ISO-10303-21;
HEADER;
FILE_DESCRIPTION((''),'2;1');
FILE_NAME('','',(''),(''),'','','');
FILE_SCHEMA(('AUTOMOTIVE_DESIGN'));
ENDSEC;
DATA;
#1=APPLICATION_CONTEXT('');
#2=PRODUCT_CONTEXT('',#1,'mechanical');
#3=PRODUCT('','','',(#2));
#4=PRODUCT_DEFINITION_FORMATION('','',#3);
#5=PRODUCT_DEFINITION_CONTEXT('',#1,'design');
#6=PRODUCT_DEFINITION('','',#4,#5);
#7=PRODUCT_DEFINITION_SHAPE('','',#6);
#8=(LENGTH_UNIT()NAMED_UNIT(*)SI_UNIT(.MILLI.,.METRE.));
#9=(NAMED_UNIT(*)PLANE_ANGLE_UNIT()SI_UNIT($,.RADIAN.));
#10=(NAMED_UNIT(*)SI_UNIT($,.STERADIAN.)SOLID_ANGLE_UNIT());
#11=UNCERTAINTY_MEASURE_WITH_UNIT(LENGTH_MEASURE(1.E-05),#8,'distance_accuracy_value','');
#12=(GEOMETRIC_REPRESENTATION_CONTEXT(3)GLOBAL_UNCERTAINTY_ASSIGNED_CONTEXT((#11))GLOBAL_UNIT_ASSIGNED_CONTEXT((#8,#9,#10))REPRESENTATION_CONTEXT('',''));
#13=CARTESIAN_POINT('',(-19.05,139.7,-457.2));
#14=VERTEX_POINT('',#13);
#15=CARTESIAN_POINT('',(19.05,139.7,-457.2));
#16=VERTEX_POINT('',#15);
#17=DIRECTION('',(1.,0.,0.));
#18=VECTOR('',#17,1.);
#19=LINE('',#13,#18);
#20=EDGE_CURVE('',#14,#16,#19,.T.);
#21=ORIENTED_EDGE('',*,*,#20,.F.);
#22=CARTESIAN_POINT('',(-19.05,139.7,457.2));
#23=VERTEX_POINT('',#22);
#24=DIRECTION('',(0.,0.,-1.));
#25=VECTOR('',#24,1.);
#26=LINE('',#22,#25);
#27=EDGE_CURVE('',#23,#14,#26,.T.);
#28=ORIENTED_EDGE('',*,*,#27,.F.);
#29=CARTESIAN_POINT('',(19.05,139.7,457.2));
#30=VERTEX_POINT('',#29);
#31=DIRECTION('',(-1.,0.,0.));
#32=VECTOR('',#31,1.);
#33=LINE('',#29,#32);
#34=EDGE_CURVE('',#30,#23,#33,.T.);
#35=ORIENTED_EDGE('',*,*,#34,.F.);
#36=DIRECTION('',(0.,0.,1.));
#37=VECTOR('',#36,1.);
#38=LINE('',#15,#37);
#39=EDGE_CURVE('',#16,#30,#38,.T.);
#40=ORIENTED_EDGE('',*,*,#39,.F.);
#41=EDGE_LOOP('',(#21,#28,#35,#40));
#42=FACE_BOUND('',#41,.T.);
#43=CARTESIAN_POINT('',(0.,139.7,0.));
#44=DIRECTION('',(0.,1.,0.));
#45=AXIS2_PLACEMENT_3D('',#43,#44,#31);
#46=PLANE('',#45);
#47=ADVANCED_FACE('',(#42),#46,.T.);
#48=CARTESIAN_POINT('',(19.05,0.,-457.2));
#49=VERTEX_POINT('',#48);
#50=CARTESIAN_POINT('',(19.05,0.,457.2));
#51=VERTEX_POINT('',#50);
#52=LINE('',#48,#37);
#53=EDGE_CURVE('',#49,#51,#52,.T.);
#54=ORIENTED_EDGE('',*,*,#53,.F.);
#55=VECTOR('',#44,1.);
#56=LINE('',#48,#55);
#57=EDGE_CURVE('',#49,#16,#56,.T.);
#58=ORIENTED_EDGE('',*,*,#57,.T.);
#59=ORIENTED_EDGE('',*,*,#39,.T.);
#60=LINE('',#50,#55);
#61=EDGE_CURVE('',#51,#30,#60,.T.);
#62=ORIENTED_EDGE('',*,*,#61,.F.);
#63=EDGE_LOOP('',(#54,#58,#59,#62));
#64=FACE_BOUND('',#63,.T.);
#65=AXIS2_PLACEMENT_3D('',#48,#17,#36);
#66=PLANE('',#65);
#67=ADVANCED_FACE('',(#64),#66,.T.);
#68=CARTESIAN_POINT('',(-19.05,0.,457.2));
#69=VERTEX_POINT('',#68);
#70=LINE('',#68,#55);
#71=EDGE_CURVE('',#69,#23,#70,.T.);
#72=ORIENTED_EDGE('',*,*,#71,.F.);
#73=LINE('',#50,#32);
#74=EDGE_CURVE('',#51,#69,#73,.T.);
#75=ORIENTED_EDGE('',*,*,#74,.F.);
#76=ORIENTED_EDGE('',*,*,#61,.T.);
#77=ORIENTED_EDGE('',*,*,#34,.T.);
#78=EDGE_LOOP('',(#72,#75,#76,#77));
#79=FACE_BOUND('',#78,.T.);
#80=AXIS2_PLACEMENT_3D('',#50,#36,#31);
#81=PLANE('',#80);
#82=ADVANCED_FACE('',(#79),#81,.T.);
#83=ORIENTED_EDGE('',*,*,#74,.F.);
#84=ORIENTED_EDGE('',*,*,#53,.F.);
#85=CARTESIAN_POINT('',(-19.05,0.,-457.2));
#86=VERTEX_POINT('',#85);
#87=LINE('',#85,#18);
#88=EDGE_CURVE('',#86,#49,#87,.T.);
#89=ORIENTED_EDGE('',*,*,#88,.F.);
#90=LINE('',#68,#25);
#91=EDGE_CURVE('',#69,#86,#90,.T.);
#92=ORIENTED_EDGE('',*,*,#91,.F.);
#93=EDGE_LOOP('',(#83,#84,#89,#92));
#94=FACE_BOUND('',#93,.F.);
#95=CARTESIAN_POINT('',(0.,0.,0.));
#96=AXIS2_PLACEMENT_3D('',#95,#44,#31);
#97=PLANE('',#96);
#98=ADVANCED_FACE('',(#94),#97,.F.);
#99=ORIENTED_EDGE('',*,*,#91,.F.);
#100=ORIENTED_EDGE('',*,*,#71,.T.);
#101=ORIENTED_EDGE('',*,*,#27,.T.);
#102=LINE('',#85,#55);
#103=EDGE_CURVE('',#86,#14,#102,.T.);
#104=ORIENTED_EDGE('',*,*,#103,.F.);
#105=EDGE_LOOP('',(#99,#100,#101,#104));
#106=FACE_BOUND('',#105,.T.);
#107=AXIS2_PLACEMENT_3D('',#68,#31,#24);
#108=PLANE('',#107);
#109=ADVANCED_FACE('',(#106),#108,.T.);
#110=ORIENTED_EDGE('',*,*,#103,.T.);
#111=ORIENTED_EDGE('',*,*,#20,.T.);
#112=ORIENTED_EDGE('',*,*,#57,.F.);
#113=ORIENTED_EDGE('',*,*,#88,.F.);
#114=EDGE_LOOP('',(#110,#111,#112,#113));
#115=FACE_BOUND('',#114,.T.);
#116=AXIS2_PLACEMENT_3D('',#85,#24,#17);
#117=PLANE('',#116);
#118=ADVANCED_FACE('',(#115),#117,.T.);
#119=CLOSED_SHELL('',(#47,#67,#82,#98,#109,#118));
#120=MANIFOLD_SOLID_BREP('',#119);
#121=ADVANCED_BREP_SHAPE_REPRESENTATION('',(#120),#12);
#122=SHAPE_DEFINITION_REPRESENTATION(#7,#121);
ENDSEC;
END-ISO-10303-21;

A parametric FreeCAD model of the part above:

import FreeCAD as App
import Part
import Sketcher
Q = App.Units.Quantity


def add_polygon(sketch, points):
    """Adds a closed chain of lines whose ends are joined by coincident constraints."""
    first, n = sketch.GeometryCount, len(points)
    for a, b in zip(points, points[1:] + points[:1]):
        sketch.addGeometry(Part.LineSegment(App.Vector(*a, 0), App.Vector(*b, 0)), False)
    for i in range(n):
        sketch.addConstraint(Sketcher.Constraint("Coincident", first + i, 2, first + (i + 1) % n, 1))

doc = App.newDocument("Part")
body = doc.addObject("PartDesign::Body", "Body")

# Sketch on XZ plane
sketch1 = body.newObject("Sketcher::SketchObject", "Sketch")
sketch1.AttachmentSupport = (doc.getObject("XZ_Plane"), [""])
sketch1.MapMode = "FlatFace"
add_polygon(sketch1, [(-19, 457), (19, 457), (19, -457), (-19, -457)])  # lines 0-3
sketch1.addConstraint(Sketcher.Constraint("Horizontal", 0))
sketch1.addConstraint(Sketcher.Constraint("Vertical", 1))
sketch1.addConstraint(Sketcher.Constraint("Horizontal", 2))
sketch1.addConstraint(Sketcher.Constraint("Vertical", 3))
sketch1.addConstraint(Sketcher.Constraint("Symmetric", 0, 2, 2, 2, -1, 1))
sketch1.addConstraint(Sketcher.Constraint("DistanceY", 1, 2, 1, 1, Q("36 in")))
sketch1.addConstraint(Sketcher.Constraint("DistanceX", 0, 1, 0, 2, Q("1.5 in")))
pad1 = body.newObject("PartDesign::Pad", "Pad")
pad1.Profile = sketch1
pad1.Length = Q("5.5 in")
pad1.Reversed = True

doc.recompute()
